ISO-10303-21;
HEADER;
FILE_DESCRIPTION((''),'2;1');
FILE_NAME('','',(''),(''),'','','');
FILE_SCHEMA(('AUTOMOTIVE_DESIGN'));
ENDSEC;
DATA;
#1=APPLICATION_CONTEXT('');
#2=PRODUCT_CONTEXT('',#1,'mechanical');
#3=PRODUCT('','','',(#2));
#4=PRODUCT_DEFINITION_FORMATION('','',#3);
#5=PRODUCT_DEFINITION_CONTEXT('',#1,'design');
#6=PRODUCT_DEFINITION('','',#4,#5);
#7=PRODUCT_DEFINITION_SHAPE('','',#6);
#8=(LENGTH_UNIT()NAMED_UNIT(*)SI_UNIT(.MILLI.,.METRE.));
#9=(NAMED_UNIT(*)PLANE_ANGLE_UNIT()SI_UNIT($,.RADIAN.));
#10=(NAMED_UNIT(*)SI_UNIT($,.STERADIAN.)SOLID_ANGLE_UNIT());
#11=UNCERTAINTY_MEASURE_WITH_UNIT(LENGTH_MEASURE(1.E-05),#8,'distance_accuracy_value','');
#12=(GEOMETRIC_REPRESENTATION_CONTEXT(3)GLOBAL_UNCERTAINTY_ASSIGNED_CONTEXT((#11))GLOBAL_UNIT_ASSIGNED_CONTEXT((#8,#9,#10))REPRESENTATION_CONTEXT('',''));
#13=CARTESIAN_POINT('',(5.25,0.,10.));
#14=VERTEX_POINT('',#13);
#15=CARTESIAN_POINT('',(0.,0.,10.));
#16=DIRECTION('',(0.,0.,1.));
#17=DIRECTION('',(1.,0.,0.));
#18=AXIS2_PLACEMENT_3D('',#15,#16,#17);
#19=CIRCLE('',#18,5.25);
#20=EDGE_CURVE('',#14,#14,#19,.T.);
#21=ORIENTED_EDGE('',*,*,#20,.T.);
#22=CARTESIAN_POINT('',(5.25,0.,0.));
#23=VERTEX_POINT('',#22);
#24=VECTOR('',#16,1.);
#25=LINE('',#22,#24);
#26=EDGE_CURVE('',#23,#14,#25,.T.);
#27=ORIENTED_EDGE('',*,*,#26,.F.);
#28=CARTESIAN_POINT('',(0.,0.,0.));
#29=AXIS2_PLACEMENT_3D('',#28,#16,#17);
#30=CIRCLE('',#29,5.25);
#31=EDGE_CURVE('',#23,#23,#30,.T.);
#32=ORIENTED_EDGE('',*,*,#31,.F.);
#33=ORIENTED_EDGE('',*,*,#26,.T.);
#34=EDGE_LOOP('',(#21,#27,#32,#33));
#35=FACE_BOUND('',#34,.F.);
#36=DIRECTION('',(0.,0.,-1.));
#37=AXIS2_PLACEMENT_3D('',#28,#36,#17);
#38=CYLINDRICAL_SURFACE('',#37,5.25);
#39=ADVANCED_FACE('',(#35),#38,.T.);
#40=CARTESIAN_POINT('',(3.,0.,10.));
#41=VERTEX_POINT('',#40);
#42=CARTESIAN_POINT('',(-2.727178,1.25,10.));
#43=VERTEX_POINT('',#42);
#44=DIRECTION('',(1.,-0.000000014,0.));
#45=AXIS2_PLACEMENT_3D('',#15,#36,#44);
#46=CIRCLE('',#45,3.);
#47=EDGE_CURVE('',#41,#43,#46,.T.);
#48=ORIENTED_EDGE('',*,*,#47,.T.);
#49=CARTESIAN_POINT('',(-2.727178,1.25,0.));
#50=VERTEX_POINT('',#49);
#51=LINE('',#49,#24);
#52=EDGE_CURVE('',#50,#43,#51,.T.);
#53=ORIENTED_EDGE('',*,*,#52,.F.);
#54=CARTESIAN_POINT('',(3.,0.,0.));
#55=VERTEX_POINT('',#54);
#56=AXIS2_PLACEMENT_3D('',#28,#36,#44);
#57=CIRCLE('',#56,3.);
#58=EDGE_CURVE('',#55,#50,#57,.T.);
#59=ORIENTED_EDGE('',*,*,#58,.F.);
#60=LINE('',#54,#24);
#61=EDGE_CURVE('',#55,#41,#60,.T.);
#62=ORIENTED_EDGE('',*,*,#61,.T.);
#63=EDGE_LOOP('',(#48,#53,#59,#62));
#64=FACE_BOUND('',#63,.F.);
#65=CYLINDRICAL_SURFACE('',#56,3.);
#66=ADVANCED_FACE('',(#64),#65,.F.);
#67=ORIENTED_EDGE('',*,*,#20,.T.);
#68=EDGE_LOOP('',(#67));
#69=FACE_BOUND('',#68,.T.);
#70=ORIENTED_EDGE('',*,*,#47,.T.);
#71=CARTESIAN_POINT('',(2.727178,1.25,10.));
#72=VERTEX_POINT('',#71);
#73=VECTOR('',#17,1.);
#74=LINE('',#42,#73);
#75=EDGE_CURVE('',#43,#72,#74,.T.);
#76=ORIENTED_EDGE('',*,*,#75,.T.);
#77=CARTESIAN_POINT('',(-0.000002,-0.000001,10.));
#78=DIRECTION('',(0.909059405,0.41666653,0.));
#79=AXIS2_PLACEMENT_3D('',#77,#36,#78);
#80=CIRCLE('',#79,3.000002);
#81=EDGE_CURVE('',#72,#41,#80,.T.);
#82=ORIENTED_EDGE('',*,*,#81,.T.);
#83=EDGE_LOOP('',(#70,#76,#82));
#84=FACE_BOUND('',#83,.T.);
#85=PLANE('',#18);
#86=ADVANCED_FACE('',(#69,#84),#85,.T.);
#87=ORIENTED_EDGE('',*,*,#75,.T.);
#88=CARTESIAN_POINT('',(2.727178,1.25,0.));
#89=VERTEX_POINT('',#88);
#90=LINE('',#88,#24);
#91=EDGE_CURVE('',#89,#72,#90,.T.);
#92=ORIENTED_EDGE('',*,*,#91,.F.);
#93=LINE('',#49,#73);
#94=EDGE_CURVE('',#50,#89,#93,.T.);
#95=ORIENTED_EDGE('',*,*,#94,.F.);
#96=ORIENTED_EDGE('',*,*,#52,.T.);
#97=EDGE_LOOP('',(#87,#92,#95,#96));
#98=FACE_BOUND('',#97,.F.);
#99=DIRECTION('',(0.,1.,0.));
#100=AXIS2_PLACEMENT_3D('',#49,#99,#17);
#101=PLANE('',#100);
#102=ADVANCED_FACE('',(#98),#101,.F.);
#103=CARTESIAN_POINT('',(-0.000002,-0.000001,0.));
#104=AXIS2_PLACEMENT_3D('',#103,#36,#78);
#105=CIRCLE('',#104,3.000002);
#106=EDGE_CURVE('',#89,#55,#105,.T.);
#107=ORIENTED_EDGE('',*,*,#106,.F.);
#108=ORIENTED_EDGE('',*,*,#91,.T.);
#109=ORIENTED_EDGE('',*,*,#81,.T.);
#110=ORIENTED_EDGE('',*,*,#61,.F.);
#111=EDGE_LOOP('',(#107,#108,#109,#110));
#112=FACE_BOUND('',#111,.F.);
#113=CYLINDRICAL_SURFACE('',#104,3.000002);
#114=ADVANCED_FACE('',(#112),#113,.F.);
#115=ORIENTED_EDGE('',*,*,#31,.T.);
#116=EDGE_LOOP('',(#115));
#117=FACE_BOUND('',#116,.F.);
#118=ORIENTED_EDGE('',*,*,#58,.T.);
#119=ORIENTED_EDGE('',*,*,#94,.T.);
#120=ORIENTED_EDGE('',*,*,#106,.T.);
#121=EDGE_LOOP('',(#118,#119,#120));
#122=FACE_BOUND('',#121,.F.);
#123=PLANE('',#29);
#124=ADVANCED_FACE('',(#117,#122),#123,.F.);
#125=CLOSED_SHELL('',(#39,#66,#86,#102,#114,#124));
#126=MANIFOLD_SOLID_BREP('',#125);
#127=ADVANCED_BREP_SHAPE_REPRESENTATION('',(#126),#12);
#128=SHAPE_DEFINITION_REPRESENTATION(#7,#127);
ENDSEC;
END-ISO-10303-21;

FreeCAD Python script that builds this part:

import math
import FreeCAD as App
import Part
import Sketcher
Q = App.Units.Quantity

doc = App.newDocument("Part")
body = doc.addObject("PartDesign::Body", "Body")

# Sketch on XY plane
sketch1 = doc.addObject("Sketcher::SketchObject", "Sketch")
body.addObject(sketch1)
sketch1.AttachmentSupport = (doc.XY_Plane, [""])
sketch1.MapMode = "FlatFace"
sketch1.addGeometry([
    Part.Circle(App.Vector(0, 0, 0), App.Vector(0, 0, 1), 5.2),
    Part.ArcOfCircle(Part.Circle(App.Vector(0, 0, 0), App.Vector(0, 0, 1), 3), math.radians(155), math.radians(360)),
    Part.LineSegment(App.Vector(-2.7, 1.2, 0), App.Vector(2.7, 1.2, 0)),
    Part.ArcOfCircle(Part.Circle(App.Vector(0, 0, 0), App.Vector(0, 0, 1), 3), math.radians(0), math.radians(25)),
], False)
sketch1.addConstraint([
    Sketcher.Constraint("Coincident", 1, 1, 2, 1),
    Sketcher.Constraint("Coincident", 2, 2, 3, 2),
    Sketcher.Constraint("Tangent", 3, 1, 1, 2),
    Sketcher.Constraint("Horizontal", 2),
    Sketcher.Constraint("Coincident", 0, 3, -1, 1),
    Sketcher.Constraint("Coincident", 1, 3, -1, 1),
    Sketcher.Constraint("PointOnObject", 3, 1, -1),
    Sketcher.Constraint("Radius", 1, Q("3 mm")),
    Sketcher.Constraint("Diameter", 0, Q("10.5 mm")),
    Sketcher.Constraint("DistanceY", -1, 1, 1, 1, Q("1.25 mm")),
    Sketcher.Constraint("Radius", 3, Q("3.000002 mm")),
])
pad1 = doc.addObject("PartDesign::Pad", "Pad")
body.addObject(pad1)
pad1.Profile = sketch1
pad1.Length = 10

doc.recompute()
